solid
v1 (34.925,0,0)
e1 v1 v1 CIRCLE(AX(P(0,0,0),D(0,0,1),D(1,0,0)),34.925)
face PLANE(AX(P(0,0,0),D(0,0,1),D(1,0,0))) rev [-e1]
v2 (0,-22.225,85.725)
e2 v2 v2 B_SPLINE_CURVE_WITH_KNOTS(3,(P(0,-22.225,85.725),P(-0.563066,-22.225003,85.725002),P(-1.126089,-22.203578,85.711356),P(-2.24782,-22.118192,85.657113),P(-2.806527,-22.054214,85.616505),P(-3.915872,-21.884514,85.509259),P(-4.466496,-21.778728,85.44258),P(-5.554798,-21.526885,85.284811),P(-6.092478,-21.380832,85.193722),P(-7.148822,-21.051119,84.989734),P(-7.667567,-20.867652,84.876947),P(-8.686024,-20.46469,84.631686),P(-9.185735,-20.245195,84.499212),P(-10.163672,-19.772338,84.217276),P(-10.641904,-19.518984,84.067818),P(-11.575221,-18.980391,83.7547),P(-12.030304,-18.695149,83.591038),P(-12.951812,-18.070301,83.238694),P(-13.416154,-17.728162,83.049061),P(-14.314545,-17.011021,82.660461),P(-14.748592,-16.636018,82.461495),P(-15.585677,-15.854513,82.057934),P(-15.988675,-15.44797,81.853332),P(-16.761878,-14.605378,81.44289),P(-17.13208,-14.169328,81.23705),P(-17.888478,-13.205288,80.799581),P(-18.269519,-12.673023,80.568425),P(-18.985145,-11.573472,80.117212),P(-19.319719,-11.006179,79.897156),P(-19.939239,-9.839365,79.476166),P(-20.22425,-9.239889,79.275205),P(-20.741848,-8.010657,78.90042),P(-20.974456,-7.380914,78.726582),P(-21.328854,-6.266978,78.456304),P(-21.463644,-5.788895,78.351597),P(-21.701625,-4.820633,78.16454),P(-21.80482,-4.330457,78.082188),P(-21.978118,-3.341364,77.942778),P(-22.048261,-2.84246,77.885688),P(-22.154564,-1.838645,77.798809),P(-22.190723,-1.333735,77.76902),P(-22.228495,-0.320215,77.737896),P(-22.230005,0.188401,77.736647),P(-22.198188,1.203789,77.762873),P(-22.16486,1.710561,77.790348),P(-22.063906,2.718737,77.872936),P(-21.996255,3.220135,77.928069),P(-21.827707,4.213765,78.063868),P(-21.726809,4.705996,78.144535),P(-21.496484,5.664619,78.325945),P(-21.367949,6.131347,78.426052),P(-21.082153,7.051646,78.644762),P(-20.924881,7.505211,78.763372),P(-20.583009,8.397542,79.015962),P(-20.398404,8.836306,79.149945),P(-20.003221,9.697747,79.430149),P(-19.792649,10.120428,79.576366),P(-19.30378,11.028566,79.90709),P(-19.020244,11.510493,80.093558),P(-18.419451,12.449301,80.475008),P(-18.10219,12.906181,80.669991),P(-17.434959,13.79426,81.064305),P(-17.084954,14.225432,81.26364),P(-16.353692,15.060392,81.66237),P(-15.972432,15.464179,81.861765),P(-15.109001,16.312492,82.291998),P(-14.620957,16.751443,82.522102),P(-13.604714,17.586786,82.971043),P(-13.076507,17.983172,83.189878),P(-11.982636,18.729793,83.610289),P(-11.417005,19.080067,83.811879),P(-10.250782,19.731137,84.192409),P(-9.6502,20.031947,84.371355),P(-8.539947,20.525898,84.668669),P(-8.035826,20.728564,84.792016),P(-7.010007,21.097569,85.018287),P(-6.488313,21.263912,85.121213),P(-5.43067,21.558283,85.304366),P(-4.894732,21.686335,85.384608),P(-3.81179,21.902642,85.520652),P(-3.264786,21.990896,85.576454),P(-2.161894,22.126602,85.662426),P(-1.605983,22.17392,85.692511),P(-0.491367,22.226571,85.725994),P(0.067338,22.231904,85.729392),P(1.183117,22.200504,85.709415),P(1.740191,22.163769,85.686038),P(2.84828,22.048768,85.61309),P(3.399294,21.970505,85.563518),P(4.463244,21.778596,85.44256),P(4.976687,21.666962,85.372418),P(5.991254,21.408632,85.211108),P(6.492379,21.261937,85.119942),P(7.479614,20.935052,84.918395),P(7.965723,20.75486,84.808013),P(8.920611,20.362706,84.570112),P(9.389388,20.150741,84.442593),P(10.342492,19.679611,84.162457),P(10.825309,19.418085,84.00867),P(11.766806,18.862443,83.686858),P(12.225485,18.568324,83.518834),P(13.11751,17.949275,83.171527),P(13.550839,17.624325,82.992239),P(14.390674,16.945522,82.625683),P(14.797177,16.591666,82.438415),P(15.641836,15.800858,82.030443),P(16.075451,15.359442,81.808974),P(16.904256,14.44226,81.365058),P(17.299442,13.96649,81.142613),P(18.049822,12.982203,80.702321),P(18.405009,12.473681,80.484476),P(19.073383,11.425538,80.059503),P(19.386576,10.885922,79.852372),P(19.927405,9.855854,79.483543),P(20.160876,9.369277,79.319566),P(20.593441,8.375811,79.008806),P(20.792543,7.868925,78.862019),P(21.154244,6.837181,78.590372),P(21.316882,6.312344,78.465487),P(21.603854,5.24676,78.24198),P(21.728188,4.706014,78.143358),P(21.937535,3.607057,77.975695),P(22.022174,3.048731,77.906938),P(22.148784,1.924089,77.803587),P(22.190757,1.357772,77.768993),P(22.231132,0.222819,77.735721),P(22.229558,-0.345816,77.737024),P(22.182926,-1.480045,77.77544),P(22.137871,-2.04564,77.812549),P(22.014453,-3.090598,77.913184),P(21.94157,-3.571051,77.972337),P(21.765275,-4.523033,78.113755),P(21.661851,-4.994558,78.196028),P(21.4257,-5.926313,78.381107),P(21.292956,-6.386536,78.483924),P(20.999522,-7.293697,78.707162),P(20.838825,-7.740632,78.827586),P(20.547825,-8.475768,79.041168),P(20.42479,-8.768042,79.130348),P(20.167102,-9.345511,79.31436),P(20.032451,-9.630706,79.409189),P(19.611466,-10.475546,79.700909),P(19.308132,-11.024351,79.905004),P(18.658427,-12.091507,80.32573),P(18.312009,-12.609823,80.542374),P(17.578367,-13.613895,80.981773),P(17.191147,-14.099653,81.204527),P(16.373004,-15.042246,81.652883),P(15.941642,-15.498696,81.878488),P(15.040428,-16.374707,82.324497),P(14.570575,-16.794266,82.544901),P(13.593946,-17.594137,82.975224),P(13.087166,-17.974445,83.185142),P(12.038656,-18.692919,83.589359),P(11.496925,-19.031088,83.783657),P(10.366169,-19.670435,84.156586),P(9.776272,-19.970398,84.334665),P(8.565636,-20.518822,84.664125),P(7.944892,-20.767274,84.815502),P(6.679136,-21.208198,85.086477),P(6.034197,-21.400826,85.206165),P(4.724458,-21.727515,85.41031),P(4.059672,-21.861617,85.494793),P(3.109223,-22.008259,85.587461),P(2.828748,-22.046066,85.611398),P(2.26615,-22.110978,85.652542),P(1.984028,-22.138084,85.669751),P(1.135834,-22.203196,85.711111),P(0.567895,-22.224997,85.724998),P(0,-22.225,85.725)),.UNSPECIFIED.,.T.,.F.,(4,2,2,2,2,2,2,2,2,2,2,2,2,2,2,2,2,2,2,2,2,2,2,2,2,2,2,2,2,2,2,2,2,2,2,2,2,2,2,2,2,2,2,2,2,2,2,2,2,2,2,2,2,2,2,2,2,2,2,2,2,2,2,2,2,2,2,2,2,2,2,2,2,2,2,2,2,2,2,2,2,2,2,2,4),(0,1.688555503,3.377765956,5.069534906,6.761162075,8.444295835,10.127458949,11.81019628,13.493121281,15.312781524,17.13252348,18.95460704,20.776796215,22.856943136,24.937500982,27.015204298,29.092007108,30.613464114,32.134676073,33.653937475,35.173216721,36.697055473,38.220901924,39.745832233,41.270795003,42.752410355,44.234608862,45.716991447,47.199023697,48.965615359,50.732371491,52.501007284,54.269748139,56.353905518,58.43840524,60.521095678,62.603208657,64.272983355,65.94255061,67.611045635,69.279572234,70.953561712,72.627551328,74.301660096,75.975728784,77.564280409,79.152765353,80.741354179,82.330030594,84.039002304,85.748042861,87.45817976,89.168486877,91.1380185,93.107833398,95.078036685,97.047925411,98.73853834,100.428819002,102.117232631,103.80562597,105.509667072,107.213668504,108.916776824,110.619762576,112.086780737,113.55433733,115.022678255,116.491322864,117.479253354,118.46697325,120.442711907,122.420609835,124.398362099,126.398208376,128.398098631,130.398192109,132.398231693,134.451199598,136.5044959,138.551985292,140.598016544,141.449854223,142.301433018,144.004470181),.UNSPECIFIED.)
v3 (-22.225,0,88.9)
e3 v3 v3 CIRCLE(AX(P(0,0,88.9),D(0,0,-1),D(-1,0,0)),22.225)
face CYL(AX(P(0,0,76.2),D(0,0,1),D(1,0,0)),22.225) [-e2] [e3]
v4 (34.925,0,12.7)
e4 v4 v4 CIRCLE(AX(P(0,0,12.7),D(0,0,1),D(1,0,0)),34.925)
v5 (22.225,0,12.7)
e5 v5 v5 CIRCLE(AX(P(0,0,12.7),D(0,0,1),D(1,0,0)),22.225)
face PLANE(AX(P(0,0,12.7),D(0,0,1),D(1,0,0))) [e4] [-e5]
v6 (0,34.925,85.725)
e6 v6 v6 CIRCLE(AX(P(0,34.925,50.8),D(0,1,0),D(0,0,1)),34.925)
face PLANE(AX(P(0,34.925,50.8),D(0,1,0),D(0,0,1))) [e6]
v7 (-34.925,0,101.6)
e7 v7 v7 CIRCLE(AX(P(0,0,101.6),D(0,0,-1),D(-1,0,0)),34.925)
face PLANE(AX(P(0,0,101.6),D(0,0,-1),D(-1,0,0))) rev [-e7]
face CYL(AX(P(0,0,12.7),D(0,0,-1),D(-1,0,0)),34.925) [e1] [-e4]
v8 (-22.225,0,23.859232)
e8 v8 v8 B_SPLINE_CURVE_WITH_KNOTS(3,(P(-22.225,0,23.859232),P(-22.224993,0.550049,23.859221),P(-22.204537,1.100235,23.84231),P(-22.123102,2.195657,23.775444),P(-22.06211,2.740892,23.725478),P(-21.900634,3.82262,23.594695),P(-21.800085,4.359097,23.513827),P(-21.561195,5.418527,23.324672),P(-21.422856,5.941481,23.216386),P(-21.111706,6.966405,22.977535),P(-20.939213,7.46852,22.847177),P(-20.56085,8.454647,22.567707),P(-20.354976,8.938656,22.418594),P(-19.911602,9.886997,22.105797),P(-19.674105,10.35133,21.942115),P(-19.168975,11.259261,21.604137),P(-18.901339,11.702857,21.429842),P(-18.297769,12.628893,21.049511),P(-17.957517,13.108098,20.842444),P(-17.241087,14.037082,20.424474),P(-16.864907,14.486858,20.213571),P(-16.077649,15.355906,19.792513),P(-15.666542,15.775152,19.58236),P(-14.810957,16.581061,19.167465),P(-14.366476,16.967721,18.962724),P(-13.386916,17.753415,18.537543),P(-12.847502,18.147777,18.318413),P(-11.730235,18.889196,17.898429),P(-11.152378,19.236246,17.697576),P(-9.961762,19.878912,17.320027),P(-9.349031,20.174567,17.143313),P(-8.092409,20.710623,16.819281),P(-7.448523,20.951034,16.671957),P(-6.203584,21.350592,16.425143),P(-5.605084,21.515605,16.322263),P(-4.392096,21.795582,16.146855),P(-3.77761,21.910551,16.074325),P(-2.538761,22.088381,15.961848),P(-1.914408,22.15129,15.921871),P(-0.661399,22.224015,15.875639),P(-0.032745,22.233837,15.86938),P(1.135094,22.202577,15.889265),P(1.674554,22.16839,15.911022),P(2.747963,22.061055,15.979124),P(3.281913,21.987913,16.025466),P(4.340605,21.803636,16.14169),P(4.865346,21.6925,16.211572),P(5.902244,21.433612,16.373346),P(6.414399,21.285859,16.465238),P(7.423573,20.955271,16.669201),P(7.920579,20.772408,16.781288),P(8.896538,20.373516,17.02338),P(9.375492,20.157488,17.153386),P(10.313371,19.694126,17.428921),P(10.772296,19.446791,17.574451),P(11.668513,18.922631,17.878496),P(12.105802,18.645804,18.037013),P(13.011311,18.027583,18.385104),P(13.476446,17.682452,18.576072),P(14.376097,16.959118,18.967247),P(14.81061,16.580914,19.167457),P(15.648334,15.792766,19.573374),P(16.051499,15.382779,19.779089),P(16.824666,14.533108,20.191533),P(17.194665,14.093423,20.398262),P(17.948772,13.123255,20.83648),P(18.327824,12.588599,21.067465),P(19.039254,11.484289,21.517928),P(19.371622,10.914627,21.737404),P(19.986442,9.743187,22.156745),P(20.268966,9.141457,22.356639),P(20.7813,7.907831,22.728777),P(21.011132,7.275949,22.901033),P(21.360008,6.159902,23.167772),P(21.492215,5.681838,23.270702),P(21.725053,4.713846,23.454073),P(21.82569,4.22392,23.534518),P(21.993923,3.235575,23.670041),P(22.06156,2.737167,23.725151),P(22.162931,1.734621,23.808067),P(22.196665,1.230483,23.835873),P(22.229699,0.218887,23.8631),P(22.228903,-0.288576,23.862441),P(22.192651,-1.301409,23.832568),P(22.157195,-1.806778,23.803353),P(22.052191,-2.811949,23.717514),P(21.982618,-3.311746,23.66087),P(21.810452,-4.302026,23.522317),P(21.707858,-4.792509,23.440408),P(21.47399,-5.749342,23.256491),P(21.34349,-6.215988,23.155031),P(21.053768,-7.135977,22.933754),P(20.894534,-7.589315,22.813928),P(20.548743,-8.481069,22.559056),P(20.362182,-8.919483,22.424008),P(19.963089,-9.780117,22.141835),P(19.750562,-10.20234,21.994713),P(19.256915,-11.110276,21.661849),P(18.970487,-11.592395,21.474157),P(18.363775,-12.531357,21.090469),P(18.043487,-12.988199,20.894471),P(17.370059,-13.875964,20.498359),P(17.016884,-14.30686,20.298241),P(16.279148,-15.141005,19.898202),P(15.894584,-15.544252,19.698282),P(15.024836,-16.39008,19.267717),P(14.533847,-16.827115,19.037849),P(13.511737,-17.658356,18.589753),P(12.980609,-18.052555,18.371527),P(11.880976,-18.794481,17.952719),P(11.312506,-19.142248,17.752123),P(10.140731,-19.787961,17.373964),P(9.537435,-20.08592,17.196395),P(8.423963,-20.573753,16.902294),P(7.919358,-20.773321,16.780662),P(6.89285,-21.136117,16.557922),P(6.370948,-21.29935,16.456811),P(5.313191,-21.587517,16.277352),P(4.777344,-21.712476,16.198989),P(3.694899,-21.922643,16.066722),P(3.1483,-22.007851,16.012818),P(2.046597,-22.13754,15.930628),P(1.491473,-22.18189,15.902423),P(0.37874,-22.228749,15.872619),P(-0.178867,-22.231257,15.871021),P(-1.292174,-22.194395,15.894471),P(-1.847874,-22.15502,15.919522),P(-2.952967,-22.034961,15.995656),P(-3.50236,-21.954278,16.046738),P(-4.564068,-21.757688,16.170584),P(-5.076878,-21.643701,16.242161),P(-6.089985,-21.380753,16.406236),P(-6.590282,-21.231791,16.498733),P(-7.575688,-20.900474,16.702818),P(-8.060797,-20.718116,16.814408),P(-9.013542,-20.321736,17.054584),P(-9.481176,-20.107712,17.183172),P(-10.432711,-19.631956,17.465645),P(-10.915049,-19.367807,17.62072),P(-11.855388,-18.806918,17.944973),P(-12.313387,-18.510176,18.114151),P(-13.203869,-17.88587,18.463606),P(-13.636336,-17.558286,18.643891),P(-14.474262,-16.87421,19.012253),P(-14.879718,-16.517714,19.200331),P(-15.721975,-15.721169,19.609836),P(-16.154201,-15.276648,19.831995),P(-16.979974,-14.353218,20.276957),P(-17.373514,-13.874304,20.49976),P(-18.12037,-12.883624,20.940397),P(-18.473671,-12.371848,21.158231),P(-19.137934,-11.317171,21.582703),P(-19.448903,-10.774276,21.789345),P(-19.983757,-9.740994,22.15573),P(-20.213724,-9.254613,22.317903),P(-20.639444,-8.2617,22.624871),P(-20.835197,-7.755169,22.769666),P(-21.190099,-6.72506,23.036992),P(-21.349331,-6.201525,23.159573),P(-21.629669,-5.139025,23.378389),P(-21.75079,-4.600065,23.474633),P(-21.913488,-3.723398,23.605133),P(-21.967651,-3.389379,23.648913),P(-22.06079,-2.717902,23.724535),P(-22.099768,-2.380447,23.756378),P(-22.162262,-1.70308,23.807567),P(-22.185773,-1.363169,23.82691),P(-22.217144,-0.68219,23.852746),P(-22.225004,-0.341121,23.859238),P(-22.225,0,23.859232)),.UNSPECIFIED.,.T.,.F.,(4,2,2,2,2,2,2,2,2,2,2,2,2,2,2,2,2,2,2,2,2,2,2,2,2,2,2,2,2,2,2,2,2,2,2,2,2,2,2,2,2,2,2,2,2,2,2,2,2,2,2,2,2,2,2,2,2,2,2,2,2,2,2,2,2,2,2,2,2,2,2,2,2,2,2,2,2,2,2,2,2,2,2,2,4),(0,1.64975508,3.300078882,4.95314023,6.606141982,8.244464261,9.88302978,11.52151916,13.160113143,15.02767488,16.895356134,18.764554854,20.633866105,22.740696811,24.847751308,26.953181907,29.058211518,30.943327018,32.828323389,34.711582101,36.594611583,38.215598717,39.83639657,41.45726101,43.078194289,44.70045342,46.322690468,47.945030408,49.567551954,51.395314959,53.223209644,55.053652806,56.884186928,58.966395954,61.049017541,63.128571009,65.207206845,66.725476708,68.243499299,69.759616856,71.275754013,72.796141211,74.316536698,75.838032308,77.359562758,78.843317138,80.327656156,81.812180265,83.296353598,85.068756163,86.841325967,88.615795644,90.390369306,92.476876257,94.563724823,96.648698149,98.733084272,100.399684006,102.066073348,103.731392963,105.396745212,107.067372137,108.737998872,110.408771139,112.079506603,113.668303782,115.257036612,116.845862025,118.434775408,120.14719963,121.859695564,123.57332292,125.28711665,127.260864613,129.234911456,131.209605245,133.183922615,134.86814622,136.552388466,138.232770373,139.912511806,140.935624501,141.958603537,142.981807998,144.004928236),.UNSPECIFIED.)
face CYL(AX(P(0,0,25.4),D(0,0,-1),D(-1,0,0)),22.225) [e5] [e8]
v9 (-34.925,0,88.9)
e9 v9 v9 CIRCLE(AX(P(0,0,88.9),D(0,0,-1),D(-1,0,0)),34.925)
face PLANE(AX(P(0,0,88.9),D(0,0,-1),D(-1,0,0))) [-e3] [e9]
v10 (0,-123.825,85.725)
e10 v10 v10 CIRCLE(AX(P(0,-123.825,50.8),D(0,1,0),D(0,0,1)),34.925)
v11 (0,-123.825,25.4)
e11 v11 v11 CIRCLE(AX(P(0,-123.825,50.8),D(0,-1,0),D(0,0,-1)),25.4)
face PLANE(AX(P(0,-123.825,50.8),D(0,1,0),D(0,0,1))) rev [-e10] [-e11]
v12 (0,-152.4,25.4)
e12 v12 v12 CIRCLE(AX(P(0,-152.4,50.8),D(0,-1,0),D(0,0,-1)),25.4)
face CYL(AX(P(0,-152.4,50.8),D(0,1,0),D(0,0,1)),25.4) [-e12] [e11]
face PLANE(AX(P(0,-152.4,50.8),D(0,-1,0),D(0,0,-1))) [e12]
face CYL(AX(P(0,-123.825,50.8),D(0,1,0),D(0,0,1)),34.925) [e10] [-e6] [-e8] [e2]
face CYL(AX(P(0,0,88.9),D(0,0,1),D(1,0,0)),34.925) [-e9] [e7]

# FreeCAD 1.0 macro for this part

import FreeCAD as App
import Part
import Sketcher
from FreeCAD import Vector
Q = App.Units.Quantity

doc = App.newDocument("Part")
body = doc.addObject("PartDesign::Body", "Body")

# Sketch on XY plane
sketch1 = body.newObject("Sketcher::SketchObject", "Sketch")
sketch1.AttachmentSupport = (doc.getObject("XY_Plane"), [""])
sketch1.MapMode = "FlatFace"
sketch1.addGeometry(Part.Circle(Vector(0, 0, 0), Vector(0, 0, 1), 35), False)
sketch1.addConstraint([
    Sketcher.Constraint("Coincident", 0, 3, -1, 1),
    Sketcher.Constraint("Diameter", 0, Q("2.75 in")),
])
pad1 = body.newObject("PartDesign::Pad", "Pad")
pad1.Profile = sketch1
pad1.Length = Q("0.5 in")

# Sketch on XY plane
sketch2 = body.newObject("Sketcher::SketchObject", "Sketch001")
sketch2.AttachmentSupport = (doc.getObject("XY_Plane"), [""])
sketch2.MapMode = "FlatFace"
sketch2.AttachmentOffset = App.Placement(Vector(0, 0, 0.5 * 25.4), App.Rotation())
sketch2.addGeometry(Part.Circle(Vector(0, 0, 0), Vector(0, 0, 1), 22), False)
sketch2.addConstraint([
    Sketcher.Constraint("Coincident", 0, 3, -1, 1),
    Sketcher.Constraint("Diameter", 0, Q("1.75 in")),
])
pad2 = body.newObject("PartDesign::Pad", "Pad001")
pad2.Profile = sketch2
pad2.Length = Q("0.5 in")

# Sketch on XZ plane
sketch3 = body.newObject("Sketcher::SketchObject", "Sketch002")
sketch3.AttachmentSupport = (doc.getObject("XZ_Plane"), [""])
sketch3.MapMode = "FlatFace"
sketch3.addGeometry(Part.Circle(Vector(0, 51, 0), Vector(0, 0, 1), 35), False)
sketch3.addConstraint([
    Sketcher.Constraint("PointOnObject", 0, 3, -2),
    Sketcher.Constraint("Diameter", 0, Q("2.75 in")),
    Sketcher.Constraint("DistanceY", -1, 1, 0, 3, Q("2 in")),
])
pad3 = body.newObject("PartDesign::Pad", "Pad002")
pad3.Profile = sketch3
pad3.Type = "TwoLengths"
pad3.Length = Q("1.375 in")
pad3.Length2 = Q("4.875 in")
pad3.Reversed = True
doc.recompute()

datumline = body.newObject("PartDesign::Line", "DatumLine")
datumline.Placement = App.Placement(Vector(0, 0, 50.8), App.Rotation(Vector(0, 0, 1), Vector(0, 1, 0)))
polarpattern = body.newObject("PartDesign::PolarPattern", "PolarPattern")
polarpattern.Originals = [pad2]
polarpattern.Axis = (datumline, [""])
polarpattern.Angle = 360
polarpattern.Occurrences = 2
body.Tip = polarpattern
doc.recompute()

datumline2 = body.newObject("PartDesign::Line", "DatumLine001")
datumline2.Placement = App.Placement(Vector(0, 0, 50.8), App.Rotation(Vector(0, 0, 1), Vector(0, 1, 0)))
polarpattern2 = body.newObject("PartDesign::PolarPattern", "PolarPattern001")
polarpattern2.Originals = [pad1]
polarpattern2.Axis = (datumline2, [""])
polarpattern2.Angle = 360
polarpattern2.Occurrences = 2
body.Tip = polarpattern2

# Sketch on XZ plane
sketch4 = body.newObject("Sketcher::SketchObject", "Sketch003")
sketch4.AttachmentSupport = (doc.getObject("XZ_Plane"), [""])
sketch4.MapMode = "FlatFace"
sketch4.AttachmentOffset = App.Placement(Vector(0, 0, 4.875 * 25.4), App.Rotation())
sketch4.addGeometry(Part.Circle(Vector(0, 51, 0), Vector(0, 0, 1), 25), False)
sketch4.addConstraint([
    Sketcher.Constraint("PointOnObject", 0, 3, -2),
    Sketcher.Constraint("Diameter", 0, Q("2 in")),
    Sketcher.Constraint("DistanceY", -1, 1, 0, 3, Q("2 in")),
])
pad4 = body.newObject("PartDesign::Pad", "Pad003")
pad4.Profile = sketch4
pad4.Length = Q("1.125 in")

doc.recompute()
